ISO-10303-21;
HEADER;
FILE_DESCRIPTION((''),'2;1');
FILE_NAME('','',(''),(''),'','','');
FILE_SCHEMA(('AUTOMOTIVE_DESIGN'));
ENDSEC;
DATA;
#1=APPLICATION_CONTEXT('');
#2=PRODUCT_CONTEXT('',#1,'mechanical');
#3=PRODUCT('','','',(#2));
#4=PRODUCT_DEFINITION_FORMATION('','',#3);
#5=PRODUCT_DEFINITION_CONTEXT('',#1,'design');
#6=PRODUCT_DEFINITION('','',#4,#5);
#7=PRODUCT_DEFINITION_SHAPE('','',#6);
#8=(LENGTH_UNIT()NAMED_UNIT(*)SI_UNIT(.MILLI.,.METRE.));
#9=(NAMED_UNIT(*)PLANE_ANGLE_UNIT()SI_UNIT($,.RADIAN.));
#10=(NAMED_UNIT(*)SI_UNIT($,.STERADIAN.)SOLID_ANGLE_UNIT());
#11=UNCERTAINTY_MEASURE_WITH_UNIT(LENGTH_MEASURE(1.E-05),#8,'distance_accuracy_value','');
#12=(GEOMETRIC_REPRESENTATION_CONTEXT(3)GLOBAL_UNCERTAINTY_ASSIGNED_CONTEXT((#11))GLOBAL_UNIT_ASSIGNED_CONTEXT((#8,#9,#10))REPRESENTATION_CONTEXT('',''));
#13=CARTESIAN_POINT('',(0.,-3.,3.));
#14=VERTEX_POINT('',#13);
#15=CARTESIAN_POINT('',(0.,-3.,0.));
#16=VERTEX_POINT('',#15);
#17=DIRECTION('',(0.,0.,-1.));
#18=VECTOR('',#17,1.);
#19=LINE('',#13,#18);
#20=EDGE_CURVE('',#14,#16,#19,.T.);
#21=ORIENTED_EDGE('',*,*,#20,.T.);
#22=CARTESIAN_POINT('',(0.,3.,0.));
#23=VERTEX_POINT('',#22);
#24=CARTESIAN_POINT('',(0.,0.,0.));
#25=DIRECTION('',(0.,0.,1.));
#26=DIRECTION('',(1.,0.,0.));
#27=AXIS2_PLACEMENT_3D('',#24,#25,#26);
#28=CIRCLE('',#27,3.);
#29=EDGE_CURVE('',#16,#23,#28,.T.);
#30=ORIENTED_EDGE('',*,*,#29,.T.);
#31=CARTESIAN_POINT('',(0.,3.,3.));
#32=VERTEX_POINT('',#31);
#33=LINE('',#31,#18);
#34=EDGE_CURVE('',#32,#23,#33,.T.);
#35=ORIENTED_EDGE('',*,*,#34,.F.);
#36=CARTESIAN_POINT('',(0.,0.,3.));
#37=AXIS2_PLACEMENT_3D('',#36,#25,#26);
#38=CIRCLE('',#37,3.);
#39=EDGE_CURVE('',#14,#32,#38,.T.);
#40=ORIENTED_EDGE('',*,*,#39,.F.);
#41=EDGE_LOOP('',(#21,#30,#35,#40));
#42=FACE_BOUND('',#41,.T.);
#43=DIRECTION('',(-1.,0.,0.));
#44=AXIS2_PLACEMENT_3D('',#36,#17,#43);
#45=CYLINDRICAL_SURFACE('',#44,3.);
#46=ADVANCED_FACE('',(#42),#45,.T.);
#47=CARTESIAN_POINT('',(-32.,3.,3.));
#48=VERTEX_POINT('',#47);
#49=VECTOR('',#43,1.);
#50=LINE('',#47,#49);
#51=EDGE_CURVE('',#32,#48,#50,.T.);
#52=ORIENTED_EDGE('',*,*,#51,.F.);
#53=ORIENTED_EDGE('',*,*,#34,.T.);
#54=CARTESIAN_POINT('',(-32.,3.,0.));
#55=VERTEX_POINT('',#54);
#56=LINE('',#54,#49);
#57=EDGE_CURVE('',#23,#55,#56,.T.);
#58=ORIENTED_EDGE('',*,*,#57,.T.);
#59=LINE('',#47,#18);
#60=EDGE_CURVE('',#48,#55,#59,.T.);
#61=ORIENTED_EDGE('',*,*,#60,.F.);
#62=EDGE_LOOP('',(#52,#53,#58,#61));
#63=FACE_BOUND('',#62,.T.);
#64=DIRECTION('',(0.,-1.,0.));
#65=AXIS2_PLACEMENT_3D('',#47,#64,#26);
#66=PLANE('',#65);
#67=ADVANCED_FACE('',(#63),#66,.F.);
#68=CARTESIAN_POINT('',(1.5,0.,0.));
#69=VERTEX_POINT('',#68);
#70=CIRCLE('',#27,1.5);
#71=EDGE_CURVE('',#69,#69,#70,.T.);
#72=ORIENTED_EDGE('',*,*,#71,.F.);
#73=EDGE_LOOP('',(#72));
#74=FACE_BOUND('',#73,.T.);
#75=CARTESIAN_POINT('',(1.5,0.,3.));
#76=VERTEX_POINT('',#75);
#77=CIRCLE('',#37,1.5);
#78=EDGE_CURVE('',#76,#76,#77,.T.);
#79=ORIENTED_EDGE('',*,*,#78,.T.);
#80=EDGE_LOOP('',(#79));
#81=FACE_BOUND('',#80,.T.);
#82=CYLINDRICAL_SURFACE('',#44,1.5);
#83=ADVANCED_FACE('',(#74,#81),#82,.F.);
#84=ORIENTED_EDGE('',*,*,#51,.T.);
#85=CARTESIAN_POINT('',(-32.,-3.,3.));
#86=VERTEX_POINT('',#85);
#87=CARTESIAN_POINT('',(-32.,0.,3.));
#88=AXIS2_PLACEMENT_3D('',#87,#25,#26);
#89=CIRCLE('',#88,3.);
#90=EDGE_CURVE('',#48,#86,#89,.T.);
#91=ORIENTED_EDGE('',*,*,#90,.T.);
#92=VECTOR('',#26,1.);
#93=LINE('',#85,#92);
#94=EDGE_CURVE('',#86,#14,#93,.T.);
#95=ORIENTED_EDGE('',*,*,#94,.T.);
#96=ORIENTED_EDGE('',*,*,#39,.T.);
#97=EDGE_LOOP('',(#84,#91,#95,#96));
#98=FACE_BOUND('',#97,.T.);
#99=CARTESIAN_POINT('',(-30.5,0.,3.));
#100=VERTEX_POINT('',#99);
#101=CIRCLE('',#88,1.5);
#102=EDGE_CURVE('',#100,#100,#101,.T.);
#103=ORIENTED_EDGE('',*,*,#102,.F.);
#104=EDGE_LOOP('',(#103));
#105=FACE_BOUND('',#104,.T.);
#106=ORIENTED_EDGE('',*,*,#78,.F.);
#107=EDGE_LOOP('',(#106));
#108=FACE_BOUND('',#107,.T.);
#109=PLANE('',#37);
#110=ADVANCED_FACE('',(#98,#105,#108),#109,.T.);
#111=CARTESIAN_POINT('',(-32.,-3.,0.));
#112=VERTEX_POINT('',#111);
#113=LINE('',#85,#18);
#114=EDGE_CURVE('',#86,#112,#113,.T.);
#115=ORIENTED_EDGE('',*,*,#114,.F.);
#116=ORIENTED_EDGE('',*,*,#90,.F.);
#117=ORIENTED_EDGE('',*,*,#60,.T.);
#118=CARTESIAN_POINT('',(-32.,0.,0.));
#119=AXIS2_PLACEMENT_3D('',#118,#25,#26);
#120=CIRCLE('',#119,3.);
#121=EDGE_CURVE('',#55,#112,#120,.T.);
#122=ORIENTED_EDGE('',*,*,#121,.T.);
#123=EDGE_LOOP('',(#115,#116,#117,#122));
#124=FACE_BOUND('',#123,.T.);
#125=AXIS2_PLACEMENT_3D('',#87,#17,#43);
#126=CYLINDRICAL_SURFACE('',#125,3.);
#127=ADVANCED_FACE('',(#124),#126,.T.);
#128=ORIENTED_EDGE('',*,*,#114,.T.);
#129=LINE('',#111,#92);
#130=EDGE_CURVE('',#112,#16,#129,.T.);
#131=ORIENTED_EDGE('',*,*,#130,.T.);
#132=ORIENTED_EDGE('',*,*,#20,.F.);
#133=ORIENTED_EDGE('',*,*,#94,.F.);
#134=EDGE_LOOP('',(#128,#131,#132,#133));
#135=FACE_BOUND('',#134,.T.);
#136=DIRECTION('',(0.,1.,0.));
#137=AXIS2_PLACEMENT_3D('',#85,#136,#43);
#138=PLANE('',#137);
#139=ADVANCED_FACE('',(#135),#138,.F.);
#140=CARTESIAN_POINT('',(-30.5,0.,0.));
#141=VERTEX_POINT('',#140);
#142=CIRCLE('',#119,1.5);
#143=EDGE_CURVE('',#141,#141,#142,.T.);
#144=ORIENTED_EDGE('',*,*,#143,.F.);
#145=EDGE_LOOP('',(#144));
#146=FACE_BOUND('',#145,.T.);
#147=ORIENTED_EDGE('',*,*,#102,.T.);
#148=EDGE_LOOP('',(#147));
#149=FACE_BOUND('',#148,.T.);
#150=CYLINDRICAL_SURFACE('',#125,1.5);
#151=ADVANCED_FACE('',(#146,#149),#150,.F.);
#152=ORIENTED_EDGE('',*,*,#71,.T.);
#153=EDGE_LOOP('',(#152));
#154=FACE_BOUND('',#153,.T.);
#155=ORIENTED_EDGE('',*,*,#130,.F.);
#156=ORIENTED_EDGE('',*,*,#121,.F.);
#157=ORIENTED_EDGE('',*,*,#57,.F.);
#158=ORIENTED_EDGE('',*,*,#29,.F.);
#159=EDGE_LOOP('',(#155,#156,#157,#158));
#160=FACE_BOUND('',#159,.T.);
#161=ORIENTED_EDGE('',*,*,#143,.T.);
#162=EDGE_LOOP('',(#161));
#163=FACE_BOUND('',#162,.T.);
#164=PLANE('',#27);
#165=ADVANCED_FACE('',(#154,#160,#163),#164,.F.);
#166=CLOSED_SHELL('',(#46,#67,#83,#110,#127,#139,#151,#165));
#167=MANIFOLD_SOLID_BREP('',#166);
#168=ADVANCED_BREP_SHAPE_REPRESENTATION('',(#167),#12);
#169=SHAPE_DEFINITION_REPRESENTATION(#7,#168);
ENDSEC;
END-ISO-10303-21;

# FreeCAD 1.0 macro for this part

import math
import FreeCAD as App
import Part
import Sketcher
from FreeCAD import Vector

doc = App.newDocument("Part")
params = doc.addObject("Spreadsheet::Sheet", "Params")
for row, (alias, value) in enumerate([
    ("sketch1_diameter", "3 mm"),
    ("sketch1_radius", "3 mm"),
    ("sketch1_width", "32 mm"),
    ("pad1_length", "3 mm"),
], start=1):
    params.set(f"A{row}", alias)
    params.set(f"B{row}", "=" + value)
    params.setAlias(f"B{row}", alias)

body = doc.addObject("PartDesign::Body", "Body")

# Sketch on XY plane
sketch1 = body.newObject("Sketcher::SketchObject", "Sketch")
sketch1.AttachmentSupport = (doc.getObject("XY_Plane"), [""])
sketch1.MapMode = "FlatFace"
sketch1.addGeometry(Part.LineSegment(Vector(0, 3, 0), Vector(-32, 3, 0)), False)
sketch1.addGeometry(Part.ArcOfCircle(Part.Circle(Vector(-32, 0, 0), Vector(0, 0, 1), 3), math.radians(90), math.radians(270)), False)
sketch1.addGeometry(Part.LineSegment(Vector(-32, -3, 0), Vector(0, -3, 0)), False)
sketch1.addGeometry(Part.ArcOfCircle(Part.Circle(Vector(0, 0, 0), Vector(0, 0, 1), 3), math.radians(-90), math.radians(90)), False)
sketch1.addGeometry(Part.Circle(Vector(0, 0, 0), Vector(0, 0, 1), 1.5), False)
sketch1.addGeometry(Part.Circle(Vector(-32, 0, 0), Vector(0, 0, 1), 1.5), False)
sketch1.addConstraint(Sketcher.Constraint("Tangent", 0, 2, 1, 1))
sketch1.addConstraint(Sketcher.Constraint("Tangent", 1, 2, 2, 1))
sketch1.addConstraint(Sketcher.Constraint("Tangent", 2, 2, 3, 1))
sketch1.addConstraint(Sketcher.Constraint("Tangent", 3, 2, 0, 1))
sketch1.addConstraint(Sketcher.Constraint("Horizontal", 0))
sketch1.addConstraint(Sketcher.Constraint("Horizontal", 2))
sketch1.addConstraint(Sketcher.Constraint("Coincident", 3, 3, -1, 1))
sketch1.addConstraint(Sketcher.Constraint("Coincident", 4, 3, -1, 1))
sketch1.addConstraint(Sketcher.Constraint("Coincident", 5, 3, 1, 3))
sketch1.addConstraint(Sketcher.Constraint("Equal", 4, 5))
sketch1.addConstraint(Sketcher.Constraint("Diameter", 4, 3.0))
sketch1.addConstraint(Sketcher.Constraint("Radius", 1, 3.0))
sketch1.addConstraint(Sketcher.Constraint("DistanceX", 0, 2, 0, 1, 32.0))
sketch1.setExpression("Constraints[10]", "Params.sketch1_diameter")
sketch1.setExpression("Constraints[11]", "Params.sketch1_radius")
sketch1.setExpression("Constraints[12]", "Params.sketch1_width")
pad1 = body.newObject("PartDesign::Pad", "Pad")
pad1.Profile = sketch1
pad1.setExpression("Length", "Params.pad1_length")

doc.recompute()
